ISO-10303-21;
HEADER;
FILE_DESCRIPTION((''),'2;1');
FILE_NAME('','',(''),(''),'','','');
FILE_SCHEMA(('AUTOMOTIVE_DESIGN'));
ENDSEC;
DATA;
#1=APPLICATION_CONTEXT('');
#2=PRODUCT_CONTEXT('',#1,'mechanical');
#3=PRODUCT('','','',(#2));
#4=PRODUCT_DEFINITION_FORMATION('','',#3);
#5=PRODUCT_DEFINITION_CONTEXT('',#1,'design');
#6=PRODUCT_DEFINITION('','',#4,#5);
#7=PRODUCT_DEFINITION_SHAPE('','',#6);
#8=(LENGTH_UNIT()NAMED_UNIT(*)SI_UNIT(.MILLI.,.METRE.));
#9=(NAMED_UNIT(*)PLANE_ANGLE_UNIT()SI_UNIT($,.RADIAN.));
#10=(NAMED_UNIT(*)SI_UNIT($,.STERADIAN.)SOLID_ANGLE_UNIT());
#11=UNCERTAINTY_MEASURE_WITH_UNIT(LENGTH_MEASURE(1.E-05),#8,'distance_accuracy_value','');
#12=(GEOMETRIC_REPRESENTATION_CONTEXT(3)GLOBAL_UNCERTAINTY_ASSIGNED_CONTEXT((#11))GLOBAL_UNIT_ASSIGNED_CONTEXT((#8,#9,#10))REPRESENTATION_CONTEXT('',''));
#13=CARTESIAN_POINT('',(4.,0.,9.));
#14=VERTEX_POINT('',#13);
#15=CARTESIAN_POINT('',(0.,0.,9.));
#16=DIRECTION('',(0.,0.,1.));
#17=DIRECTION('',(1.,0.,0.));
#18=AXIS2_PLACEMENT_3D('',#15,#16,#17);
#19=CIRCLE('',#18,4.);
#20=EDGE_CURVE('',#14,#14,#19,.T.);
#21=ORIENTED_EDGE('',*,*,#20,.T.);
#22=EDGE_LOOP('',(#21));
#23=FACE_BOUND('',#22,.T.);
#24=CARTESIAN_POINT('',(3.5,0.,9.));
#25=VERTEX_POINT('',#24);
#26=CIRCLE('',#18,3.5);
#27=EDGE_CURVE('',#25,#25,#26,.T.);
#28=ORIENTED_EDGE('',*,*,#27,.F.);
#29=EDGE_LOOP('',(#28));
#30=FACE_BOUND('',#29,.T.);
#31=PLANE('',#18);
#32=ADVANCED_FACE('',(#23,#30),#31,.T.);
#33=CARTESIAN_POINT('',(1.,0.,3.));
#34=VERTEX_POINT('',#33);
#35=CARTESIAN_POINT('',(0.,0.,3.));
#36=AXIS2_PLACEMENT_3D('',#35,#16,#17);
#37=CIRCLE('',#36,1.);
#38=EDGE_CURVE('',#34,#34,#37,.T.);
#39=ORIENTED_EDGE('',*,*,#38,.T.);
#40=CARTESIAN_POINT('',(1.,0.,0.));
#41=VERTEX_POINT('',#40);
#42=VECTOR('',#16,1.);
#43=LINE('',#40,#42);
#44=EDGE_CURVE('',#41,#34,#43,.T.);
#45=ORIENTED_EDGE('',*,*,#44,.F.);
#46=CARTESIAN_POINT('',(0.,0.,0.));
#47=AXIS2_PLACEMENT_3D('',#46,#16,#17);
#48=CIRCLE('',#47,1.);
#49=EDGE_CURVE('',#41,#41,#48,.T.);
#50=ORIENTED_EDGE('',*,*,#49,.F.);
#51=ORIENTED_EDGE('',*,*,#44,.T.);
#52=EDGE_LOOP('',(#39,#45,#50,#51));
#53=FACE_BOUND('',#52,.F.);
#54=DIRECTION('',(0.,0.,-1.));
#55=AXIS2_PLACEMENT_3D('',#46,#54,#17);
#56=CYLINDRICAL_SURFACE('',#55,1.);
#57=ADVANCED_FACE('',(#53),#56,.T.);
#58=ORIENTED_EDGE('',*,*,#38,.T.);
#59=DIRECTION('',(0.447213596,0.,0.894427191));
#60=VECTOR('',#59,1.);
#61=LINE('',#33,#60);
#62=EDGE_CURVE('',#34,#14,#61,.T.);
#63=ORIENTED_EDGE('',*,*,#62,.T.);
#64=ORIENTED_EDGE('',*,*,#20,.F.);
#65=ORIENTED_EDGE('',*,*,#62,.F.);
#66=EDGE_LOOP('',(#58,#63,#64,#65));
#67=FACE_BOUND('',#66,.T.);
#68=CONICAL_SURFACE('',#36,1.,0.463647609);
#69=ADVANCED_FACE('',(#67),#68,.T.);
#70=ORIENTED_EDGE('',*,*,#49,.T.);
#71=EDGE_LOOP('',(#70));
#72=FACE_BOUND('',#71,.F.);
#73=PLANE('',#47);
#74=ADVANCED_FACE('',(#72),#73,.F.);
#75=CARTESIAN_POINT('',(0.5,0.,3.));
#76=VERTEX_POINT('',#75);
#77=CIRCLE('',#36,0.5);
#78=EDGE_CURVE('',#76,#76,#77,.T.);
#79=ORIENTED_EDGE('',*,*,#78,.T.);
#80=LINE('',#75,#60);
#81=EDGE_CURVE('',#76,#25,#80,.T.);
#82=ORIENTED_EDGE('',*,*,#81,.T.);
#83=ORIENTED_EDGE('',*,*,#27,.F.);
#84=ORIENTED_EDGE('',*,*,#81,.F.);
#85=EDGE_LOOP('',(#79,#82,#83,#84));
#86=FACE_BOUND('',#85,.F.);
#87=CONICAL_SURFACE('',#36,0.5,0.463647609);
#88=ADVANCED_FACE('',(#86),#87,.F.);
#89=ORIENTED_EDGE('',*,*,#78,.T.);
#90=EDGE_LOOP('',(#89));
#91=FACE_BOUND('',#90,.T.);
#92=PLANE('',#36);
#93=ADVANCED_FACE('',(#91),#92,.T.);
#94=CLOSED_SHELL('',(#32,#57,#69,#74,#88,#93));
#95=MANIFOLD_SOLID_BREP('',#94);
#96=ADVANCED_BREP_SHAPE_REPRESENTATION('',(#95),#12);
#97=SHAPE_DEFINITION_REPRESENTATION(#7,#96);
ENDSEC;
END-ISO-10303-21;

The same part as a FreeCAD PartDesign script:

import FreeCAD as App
import Part
import Sketcher
from FreeCAD import Vector


def add_polygon(sketch, points):
    """Adds a closed chain of lines whose ends are joined by coincident constraints."""
    first, n = sketch.GeometryCount, len(points)
    for a, b in zip(points, points[1:] + points[:1]):
        sketch.addGeometry(Part.LineSegment(App.Vector(*a, 0), App.Vector(*b, 0)), False)
    for i in range(n):
        sketch.addConstraint(Sketcher.Constraint("Coincident", first + i, 2, first + (i + 1) % n, 1))

doc = App.newDocument("Part")
params = doc.addObject("Spreadsheet::Sheet", "Params")
for row, (alias, value) in enumerate([
    ("sketch1_height", "6 mm"),
    ("sketch1_width", "0.5 mm"),
    ("sketch1_width2", "3.5 mm"),
    ("revolution_angle", "360 deg"),
    ("sketch2_width", "1 mm"),
    ("sketch2_width2", "4 mm"),
    ("sketch2_height", "6 mm"),
    ("revolution2_angle", "360 deg"),
    ("sketch3_diameter", "2 mm"),
    ("pad1_length", "3 mm"),
    ("sketch4_diameter", "1 mm"),
    ("pad2_length", "3 mm"),
], start=1):
    params.set(f"A{row}", alias)
    params.set(f"B{row}", "=" + value)
    params.setAlias(f"B{row}", alias)

body = doc.addObject("PartDesign::Body", "Body")

# Sketch on XZ plane
sketch1 = doc.addObject("Sketcher::SketchObject", "Sketch")
body.addObject(sketch1)
sketch1.AttachmentSupport = (doc.XZ_Plane, [""])
sketch1.MapMode = "FlatFace"
add_polygon(sketch1, [(0, 3), (0.5, 3), (3.5, 9), (0, 9)])  # lines 0-3
sketch1.addConstraint([
    Sketcher.Constraint("Horizontal", 0),
    Sketcher.Constraint("Horizontal", 2),
    Sketcher.Constraint("Vertical", 3),
    Sketcher.Constraint("PointOnObject", 2, 2, -2),
    Sketcher.Constraint("DistanceY", 3, 2, 3, 1, 6.0),
    Sketcher.Constraint("DistanceX", 0, 1, 0, 2, 0.5),
    Sketcher.Constraint("DistanceX", 2, 2, 2, 1, 3.5),
    Sketcher.Constraint("DistanceY", -1, 1, 0, 2, 3.0),
])
sketch1.setExpression("Constraints[8]", "Params.sketch1_height")
sketch1.setExpression("Constraints[9]", "Params.sketch1_width")
sketch1.setExpression("Constraints[10]", "Params.sketch1_width2")
revolution = doc.addObject("PartDesign::Revolution", "Revolution")
body.addObject(revolution)
revolution.Profile = sketch1
revolution.ReferenceAxis = (sketch1, ["V_Axis"])
revolution.setExpression("Angle", "Params.revolution_angle")
body2 = doc.addObject("PartDesign::Body", "Body001")

# Sketch on XZ plane
sketch2 = doc.addObject("Sketcher::SketchObject", "Sketch001")
body2.addObject(sketch2)
sketch2.AttachmentSupport = (doc.getObject("XZ_Plane001"), [""])
sketch2.MapMode = "FlatFace"
add_polygon(sketch2, [(0, 3), (1, 3), (4, 9), (0, 9)])  # lines 0-3
sketch2.addConstraint([
    Sketcher.Constraint("Horizontal", 0),
    Sketcher.Constraint("Horizontal", 2),
    Sketcher.Constraint("Vertical", 3),
    Sketcher.Constraint("PointOnObject", 2, 2, -2),
    Sketcher.Constraint("DistanceX", 0, 1, 0, 2, 1.0),
    Sketcher.Constraint("DistanceX", 2, 2, 2, 1, 4.0),
    Sketcher.Constraint("DistanceY", 3, 2, 3, 1, 6.0),
    Sketcher.Constraint("DistanceY", -1, 1, 0, 2, 3.0),
])
sketch2.setExpression("Constraints[8]", "Params.sketch2_width")
sketch2.setExpression("Constraints[9]", "Params.sketch2_width2")
sketch2.setExpression("Constraints[10]", "Params.sketch2_height")
revolution2 = doc.addObject("PartDesign::Revolution", "Revolution001")
body2.addObject(revolution2)
revolution2.Profile = sketch2
revolution2.ReferenceAxis = (sketch2, ["V_Axis"])
revolution2.setExpression("Angle", "Params.revolution2_angle")
doc.recompute()

boolean = doc.addObject("PartDesign::Boolean", "Boolean")
body2.addObject(boolean)
boolean.Type = "Cut"
boolean.addObjects([body])
body3 = doc.addObject("PartDesign::Body", "Body002")

# Sketch on XY plane
sketch3 = doc.addObject("Sketcher::SketchObject", "Sketch002")
body3.addObject(sketch3)
sketch3.AttachmentSupport = (doc.getObject("XY_Plane002"), [""])
sketch3.MapMode = "FlatFace"
sketch3.addGeometry(Part.Circle(Vector(0, 0, 0), Vector(0, 0, 1), 1), False)
sketch3.addConstraint([
    Sketcher.Constraint("Coincident", 0, 3, -1, 1),
    Sketcher.Constraint("Diameter", 0, 2.0),
])
sketch3.setExpression("Constraints[1]", "Params.sketch3_diameter")
pad1 = doc.addObject("PartDesign::Pad", "Pad")
body3.addObject(pad1)
pad1.Profile = sketch3
pad1.setExpression("Length", "Params.pad1_length")
body4 = doc.addObject("PartDesign::Body", "Body003")

# Sketch on XY plane
sketch4 = doc.addObject("Sketcher::SketchObject", "Sketch003")
body4.addObject(sketch4)
sketch4.AttachmentSupport = (doc.getObject("XY_Plane003"), [""])
sketch4.MapMode = "FlatFace"
sketch4.addGeometry(Part.Circle(Vector(0, 0, 0), Vector(0, 0, 1), 0.5), False)
sketch4.addConstraint([
    Sketcher.Constraint("Coincident", 0, 3, -1, 1),
    Sketcher.Constraint("Diameter", 0, 1.0),
])
sketch4.setExpression("Constraints[1]", "Params.sketch4_diameter")
pad2 = doc.addObject("PartDesign::Pad", "Pad001")
body4.addObject(pad2)
pad2.Profile = sketch4
pad2.setExpression("Length", "Params.pad2_length")
body5 = doc.addObject("PartDesign::Body", "Body004")
doc.recompute()

body5.BaseFeature = body3
doc.recompute()

body6 = doc.addObject("PartDesign::Body", "Body005")
body6.BaseFeature = body4
boolean2 = doc.addObject("PartDesign::Boolean", "Boolean001")
body5.addObject(boolean2)
boolean2.Type = "Cut"
boolean2.addObjects([body6])
doc.recompute()

boolean3 = doc.addObject("PartDesign::Boolean", "Boolean002")
body5.addObject(boolean3)
boolean3.Type = "Fuse"
boolean3.addObjects([body2])
doc.recompute()

boolean4 = doc.addObject("PartDesign::Boolean", "Boolean003")
body5.addObject(boolean4)
boolean4.Type = "Fuse"
boolean4.addObjects([body3])
doc.recompute()

boolean5 = doc.addObject("PartDesign::Boolean", "Boolean004")
body5.addObject(boolean5)
boolean5.Type = "Fuse"
boolean5.addObjects([body4])

doc.recompute()
